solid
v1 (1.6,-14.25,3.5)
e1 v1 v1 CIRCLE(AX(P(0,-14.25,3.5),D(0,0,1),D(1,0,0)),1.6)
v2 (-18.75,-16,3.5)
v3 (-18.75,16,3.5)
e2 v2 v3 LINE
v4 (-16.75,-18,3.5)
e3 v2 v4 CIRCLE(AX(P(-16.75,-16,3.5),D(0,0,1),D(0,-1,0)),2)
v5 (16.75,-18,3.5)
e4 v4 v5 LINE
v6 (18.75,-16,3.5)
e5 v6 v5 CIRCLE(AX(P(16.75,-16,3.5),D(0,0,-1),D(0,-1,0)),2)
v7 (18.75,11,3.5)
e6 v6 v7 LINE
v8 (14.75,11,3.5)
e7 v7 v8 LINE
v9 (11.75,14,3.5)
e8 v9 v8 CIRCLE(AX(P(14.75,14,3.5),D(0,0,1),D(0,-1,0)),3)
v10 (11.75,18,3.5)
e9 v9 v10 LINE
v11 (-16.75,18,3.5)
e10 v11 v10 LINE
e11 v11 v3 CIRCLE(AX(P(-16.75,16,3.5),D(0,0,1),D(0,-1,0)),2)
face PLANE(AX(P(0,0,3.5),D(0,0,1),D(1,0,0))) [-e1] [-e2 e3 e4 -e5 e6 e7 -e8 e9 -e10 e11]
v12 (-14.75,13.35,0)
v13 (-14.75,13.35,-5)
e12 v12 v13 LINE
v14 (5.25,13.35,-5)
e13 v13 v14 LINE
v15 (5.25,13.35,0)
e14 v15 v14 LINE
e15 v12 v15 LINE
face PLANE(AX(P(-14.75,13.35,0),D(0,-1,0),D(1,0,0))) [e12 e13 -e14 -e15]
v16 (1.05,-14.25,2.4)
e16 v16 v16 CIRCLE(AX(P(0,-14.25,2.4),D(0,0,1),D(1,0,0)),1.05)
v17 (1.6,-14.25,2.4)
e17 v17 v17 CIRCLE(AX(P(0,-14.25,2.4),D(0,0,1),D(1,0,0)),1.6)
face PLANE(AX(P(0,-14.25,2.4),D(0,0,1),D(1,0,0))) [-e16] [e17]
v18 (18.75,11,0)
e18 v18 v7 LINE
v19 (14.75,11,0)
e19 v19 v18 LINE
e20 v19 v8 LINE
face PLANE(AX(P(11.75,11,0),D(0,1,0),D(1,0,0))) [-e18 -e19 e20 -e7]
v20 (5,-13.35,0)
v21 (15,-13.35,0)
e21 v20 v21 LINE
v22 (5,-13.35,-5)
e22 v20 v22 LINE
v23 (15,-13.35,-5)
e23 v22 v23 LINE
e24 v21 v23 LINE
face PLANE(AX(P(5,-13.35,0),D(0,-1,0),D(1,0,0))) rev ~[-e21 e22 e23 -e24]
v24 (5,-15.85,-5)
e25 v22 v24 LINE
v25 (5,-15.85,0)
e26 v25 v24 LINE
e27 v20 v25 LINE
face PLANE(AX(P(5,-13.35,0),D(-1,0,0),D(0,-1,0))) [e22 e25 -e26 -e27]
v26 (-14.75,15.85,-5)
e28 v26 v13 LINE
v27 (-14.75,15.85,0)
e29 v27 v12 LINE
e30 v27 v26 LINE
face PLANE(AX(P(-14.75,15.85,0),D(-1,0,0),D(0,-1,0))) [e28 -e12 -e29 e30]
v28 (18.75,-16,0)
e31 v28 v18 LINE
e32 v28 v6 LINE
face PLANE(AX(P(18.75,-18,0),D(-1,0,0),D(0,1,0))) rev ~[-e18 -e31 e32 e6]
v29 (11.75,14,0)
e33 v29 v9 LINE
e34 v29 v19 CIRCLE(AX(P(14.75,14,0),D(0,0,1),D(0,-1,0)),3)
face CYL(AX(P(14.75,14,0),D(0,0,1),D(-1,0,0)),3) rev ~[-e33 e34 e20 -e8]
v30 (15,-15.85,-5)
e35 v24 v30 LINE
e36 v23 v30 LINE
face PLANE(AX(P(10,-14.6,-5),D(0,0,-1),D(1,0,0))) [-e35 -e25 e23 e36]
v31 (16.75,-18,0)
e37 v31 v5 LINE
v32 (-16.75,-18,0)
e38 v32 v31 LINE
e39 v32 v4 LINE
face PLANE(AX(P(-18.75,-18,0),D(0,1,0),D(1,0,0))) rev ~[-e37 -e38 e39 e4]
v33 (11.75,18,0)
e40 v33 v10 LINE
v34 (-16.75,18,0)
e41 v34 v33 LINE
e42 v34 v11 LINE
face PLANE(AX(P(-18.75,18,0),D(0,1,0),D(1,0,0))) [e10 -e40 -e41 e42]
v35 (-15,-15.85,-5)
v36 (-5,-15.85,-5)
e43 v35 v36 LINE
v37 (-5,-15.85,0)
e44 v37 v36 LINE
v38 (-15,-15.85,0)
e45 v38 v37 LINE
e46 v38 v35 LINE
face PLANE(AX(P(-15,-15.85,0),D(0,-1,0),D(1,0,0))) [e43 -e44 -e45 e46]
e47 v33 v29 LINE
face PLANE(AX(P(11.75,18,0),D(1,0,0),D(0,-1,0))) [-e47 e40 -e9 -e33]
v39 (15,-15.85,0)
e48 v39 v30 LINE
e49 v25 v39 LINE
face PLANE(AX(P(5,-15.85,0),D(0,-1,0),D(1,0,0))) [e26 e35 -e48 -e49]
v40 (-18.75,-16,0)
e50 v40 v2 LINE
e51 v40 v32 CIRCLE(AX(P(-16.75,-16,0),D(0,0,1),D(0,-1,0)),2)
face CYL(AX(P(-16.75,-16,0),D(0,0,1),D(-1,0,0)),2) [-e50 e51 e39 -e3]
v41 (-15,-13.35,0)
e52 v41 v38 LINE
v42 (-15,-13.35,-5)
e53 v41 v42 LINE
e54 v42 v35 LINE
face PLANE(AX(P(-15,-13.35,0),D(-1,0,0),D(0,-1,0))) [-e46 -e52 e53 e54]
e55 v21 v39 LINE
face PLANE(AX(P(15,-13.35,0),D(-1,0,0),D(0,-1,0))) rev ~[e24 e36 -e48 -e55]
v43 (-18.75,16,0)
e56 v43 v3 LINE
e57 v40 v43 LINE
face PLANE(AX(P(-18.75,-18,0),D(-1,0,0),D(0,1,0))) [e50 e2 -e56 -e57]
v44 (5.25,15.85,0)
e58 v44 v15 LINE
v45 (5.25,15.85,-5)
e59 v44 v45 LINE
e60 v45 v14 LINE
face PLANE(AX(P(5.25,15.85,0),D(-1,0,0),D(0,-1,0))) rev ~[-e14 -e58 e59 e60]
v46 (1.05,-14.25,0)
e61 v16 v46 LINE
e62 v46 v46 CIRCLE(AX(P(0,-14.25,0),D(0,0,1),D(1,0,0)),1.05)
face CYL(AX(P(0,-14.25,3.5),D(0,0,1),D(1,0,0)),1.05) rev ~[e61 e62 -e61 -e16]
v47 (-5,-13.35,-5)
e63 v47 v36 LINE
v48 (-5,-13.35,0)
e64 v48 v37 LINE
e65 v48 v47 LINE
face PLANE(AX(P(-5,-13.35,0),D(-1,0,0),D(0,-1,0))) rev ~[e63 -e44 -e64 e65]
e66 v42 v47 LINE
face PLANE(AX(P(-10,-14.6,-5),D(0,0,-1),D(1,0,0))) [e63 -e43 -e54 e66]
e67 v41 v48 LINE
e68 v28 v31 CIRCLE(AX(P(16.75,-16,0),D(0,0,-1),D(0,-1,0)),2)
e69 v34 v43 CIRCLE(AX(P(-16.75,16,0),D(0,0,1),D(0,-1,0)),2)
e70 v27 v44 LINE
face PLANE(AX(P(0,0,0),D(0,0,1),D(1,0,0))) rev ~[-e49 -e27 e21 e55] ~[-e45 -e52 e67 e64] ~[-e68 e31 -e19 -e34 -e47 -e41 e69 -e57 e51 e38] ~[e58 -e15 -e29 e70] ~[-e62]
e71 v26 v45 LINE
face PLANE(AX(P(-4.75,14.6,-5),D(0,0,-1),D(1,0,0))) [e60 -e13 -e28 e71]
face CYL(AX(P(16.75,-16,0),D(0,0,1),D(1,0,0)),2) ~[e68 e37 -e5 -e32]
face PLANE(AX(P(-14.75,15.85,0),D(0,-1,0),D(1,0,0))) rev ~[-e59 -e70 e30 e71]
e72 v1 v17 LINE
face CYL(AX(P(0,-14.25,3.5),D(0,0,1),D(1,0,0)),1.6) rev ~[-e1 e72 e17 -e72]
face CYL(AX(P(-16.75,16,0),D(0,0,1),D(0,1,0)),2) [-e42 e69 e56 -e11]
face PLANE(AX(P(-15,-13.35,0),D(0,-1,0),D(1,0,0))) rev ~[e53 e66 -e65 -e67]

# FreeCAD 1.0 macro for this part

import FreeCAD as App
import Part
import Sketcher
from FreeCAD import Vector
Q = App.Units.Quantity


def edges_at(feature, points):
    """Names of the edges that pass closest to the given points."""
    edges = feature.Shape.Edges
    near = lambda p: min(range(len(edges)), key=lambda i: edges[i].distToShape(Part.Vertex(*p))[0])
    return sorted({f"Edge{near(p) + 1}" for p in points})


def add_polygon(sketch, points):
    """Adds a closed chain of lines whose ends are joined by coincident constraints."""
    first, n = sketch.GeometryCount, len(points)
    for a, b in zip(points, points[1:] + points[:1]):
        sketch.addGeometry(Part.LineSegment(App.Vector(*a, 0), App.Vector(*b, 0)), False)
    for i in range(n):
        sketch.addConstraint(Sketcher.Constraint("Coincident", first + i, 2, first + (i + 1) % n, 1))

doc = App.newDocument("Part")
params = doc.addObject("Spreadsheet::Sheet", "Params")
for row, (alias, value) in enumerate([
    ("sketch1_height", "36 mm"),
    ("sketch1_width", "37.5 mm"),
    ("pad1_length", "3.5 mm"),
    ("sketch2_diameter", "2.1 mm"),
    ("pocket1_length", "5 mm"),
    ("sketch3_diameter", "3.2 mm"),
    ("pocket2_length", "1.1 mm"),
    ("sketch4_width", "10 mm"),
    ("sketch4_height", "2.5 mm"),
    ("pad2_length", "5 mm"),
    ("sketch5_width", "20 mm"),
    ("sketch5_height", "2.5 mm"),
    ("pad3_length", "5 mm"),
    ("sketch6_width", "7 mm"),
    ("pocket3_length", "5 mm"),
    ("fillet_radius", "3 mm"),
    ("fillet2_radius", "2 mm"),
], start=1):
    params.set(f"A{row}", alias)
    params.set(f"B{row}", "=" + value)
    params.setAlias(f"B{row}", alias)

body = doc.addObject("PartDesign::Body", "Body")

# Sketch on XY plane
sketch1 = body.newObject("Sketcher::SketchObject", "Sketch")
sketch1.AttachmentSupport = (doc.getObject("XY_Plane"), [""])
sketch1.MapMode = "FlatFace"
add_polygon(sketch1, [(-19, 18), (-19, -18), (19, -18), (19, 18)])  # lines 0-3
sketch1.addConstraint([
    Sketcher.Constraint("Vertical", 0),
    Sketcher.Constraint("Horizontal", 1),
    Sketcher.Constraint("Vertical", 2),
    Sketcher.Constraint("Horizontal", 3),
    Sketcher.Constraint("Symmetric", 0, 2, 2, 2, -1, 1),
    Sketcher.Constraint("DistanceY", 0, 2, 0, 1, Q("36 mm")),
    Sketcher.Constraint("DistanceX", 1, 1, 1, 2, Q("37.5 mm")),
])
sketch1.setExpression("Constraints[9]", "Params.sketch1_height")
sketch1.setExpression("Constraints[10]", "Params.sketch1_width")
pad1 = body.newObject("PartDesign::Pad", "Pad")
pad1.Profile = sketch1
pad1.setExpression("Length", "Params.pad1_length")

# Sketch on XY plane
sketch2 = body.newObject("Sketcher::SketchObject", "Sketch001")
sketch2.AttachmentSupport = (doc.getObject("XY_Plane"), [""])
sketch2.MapMode = "FlatFace"
sketch2.AttachmentOffset = App.Placement(Vector(0, 0, 3.5), App.Rotation())
sketch2.addGeometry(Part.Circle(Vector(0, -14.2, 0), Vector(0, 0, 1), 1.1), False)
sketch2.addConstraint([
    Sketcher.Constraint("PointOnObject", 0, 3, -2),
    Sketcher.Constraint("Diameter", 0, Q("2.1 mm")),
    Sketcher.Constraint("DistanceY", 0, 3, -1, 1, Q("14.25 mm")),
])
sketch2.setExpression("Constraints[1]", "Params.sketch2_diameter")
pocket1 = body.newObject("PartDesign::Pocket", "Pocket")
pocket1.Profile = sketch2
pocket1.setExpression("Length", "Params.pocket1_length")

# Sketch on XY plane
sketch3 = body.newObject("Sketcher::SketchObject", "Sketch002")
sketch3.AttachmentSupport = (doc.getObject("XY_Plane"), [""])
sketch3.MapMode = "FlatFace"
sketch3.AttachmentOffset = App.Placement(Vector(0, 0, 3.5), App.Rotation())
sketch3.addGeometry(Part.Circle(Vector(0, -14.2, 0), Vector(0, 0, 1), 1.6), False)
sketch3.addConstraint([
    Sketcher.Constraint("PointOnObject", 0, 3, -2),
    Sketcher.Constraint("Diameter", 0, Q("3.2 mm")),
    Sketcher.Constraint("DistanceY", 0, 3, -1, 1, Q("14.25 mm")),
])
sketch3.setExpression("Constraints[1]", "Params.sketch3_diameter")
pocket2 = body.newObject("PartDesign::Pocket", "Pocket001")
pocket2.Profile = sketch3
pocket2.setExpression("Length", "Params.pocket2_length")

# Sketch on XY plane
sketch4 = body.newObject("Sketcher::SketchObject", "Sketch003")
sketch4.AttachmentSupport = (doc.getObject("XY_Plane"), [""])
sketch4.MapMode = "FlatFace"
add_polygon(sketch4, [(-15, -15.8), (-15, -13.3), (-5, -13.3), (-5, -15.8)])  # lines 0-3
add_polygon(sketch4, [(5, -15.8), (5, -13.3), (15, -13.3), (15, -15.8)])  # lines 4-7
sketch4.addConstraint([
    Sketcher.Constraint("Vertical", 0),
    Sketcher.Constraint("Horizontal", 1),
    Sketcher.Constraint("Vertical", 2),
    Sketcher.Constraint("Horizontal", 3),
    Sketcher.Constraint("Vertical", 4),
    Sketcher.Constraint("Horizontal", 5),
    Sketcher.Constraint("Vertical", 6),
    Sketcher.Constraint("Horizontal", 7),
    Sketcher.Constraint("Symmetric", 1, 2, 4, 2, -2),
    Sketcher.Constraint("Symmetric", 3, 2, 6, 2, -2),
    Sketcher.Constraint("DistanceX", 1, 1, 1, 2, Q("10 mm")),
    Sketcher.Constraint("DistanceY", 0, 1, 0, 2, Q("2.5 mm")),
    Sketcher.Constraint("DistanceX", 0, 2, -1, 1, Q("15 mm")),
    Sketcher.Constraint("DistanceY", 0, 2, -1, 1, Q("13.35 mm")),
])
sketch4.setExpression("Constraints[18]", "Params.sketch4_width")
sketch4.setExpression("Constraints[19]", "Params.sketch4_height")
pad2 = body.newObject("PartDesign::Pad", "Pad001")
pad2.Profile = sketch4
pad2.setExpression("Length", "Params.pad2_length")
pad2.Reversed = True

# Sketch on XY plane
sketch5 = body.newObject("Sketcher::SketchObject", "Sketch004")
sketch5.AttachmentSupport = (doc.getObject("XY_Plane"), [""])
sketch5.MapMode = "FlatFace"
add_polygon(sketch5, [(-14.8, 13.3), (-14.8, 15.8), (5.2, 15.8), (5.2, 13.3)])  # lines 0-3
sketch5.addConstraint([
    Sketcher.Constraint("Vertical", 0),
    Sketcher.Constraint("Horizontal", 1),
    Sketcher.Constraint("Vertical", 2),
    Sketcher.Constraint("Horizontal", 3),
    Sketcher.Constraint("DistanceX", 1, 1, 1, 2, Q("20 mm")),
    Sketcher.Constraint("DistanceY", 0, 1, 0, 2, Q("2.5 mm")),
    Sketcher.Constraint("DistanceX", 0, 2, -1, 1, Q("14.75 mm")),
    Sketcher.Constraint("DistanceY", -1, 1, 0, 2, Q("15.85 mm")),
])
sketch5.setExpression("Constraints[8]", "Params.sketch5_width")
sketch5.setExpression("Constraints[9]", "Params.sketch5_height")
pad3 = body.newObject("PartDesign::Pad", "Pad002")
pad3.Profile = sketch5
pad3.setExpression("Length", "Params.pad3_length")
pad3.Reversed = True

# Sketch on XY plane
sketch6 = body.newObject("Sketcher::SketchObject", "Sketch005")
sketch6.AttachmentSupport = (doc.getObject("XY_Plane"), [""])
sketch6.MapMode = "FlatFace"
add_polygon(sketch6, [(12, 11), (12, 18), (19, 18), (19, 11)])  # lines 0-3
sketch6.addConstraint([
    Sketcher.Constraint("Vertical", 0),
    Sketcher.Constraint("Horizontal", 1),
    Sketcher.Constraint("Vertical", 2),
    Sketcher.Constraint("Horizontal", 3),
    Sketcher.Constraint("Equal", 3, 0),
    Sketcher.Constraint("DistanceX", 1, 1, 1, 2, Q("7 mm")),
    Sketcher.Constraint("DistanceY", -1, 1, 0, 2, Q("18 mm")),
    Sketcher.Constraint("DistanceX", -1, 1, 0, 2, Q("11.75 mm")),
])
sketch6.setExpression("Constraints[9]", "Params.sketch6_width")
pocket3 = body.newObject("PartDesign::Pocket", "Pocket002")
pocket3.Profile = sketch6
pocket3.setExpression("Length", "Params.pocket3_length")
pocket3.Reversed = True
doc.recompute()

fillet = body.newObject("PartDesign::Fillet", "Fillet")
fillet.Base = (pocket3, edges_at(pocket3, [(11.75, 11, 1.75)]))
fillet.setExpression("Radius", "Params.fillet_radius")
doc.recompute()

fillet2 = body.newObject("PartDesign::Fillet", "Fillet001")
fillet2.Base = (fillet, edges_at(fillet, [(18.75, -18, 1.75), (-18.75, 18, 1.75), (-18.75, -18, 1.75)]))
fillet2.setExpression("Radius", "Params.fillet2_radius")

doc.recompute()
